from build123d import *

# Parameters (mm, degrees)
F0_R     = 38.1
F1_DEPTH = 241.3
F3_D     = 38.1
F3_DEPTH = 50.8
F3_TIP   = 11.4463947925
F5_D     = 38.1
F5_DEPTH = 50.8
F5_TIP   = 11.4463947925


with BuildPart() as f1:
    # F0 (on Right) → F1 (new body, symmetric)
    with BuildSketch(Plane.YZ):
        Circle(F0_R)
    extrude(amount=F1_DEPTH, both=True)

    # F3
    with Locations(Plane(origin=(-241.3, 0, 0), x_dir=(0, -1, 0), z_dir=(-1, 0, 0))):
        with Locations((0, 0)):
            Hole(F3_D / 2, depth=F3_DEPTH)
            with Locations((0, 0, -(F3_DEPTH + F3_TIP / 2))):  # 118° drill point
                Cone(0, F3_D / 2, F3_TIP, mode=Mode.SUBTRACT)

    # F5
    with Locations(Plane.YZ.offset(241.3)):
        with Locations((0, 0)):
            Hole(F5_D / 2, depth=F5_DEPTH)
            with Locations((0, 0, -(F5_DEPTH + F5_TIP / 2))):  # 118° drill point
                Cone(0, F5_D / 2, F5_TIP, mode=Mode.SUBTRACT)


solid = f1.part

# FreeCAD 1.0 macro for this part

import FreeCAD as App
import Part
import Sketcher

V = App.Vector
Q = App.Units.Quantity

doc = App.newDocument("Part")
params = doc.addObject("Spreadsheet::Sheet", "Params")
for row, (alias, value) in enumerate([
    ("sketch1_diameter", "3 in"),
    ("pad1_length", "19 in"),
    ("sketch2_diameter", "1.5 in"),
    ("hole_diameter", "1.5 in"),
    ("hole_depth", "2 in"),
    ("sketch3_diameter", "1.5 in"),
    ("hole2_diameter", "1.5 in"),
    ("hole2_depth", "2 in"),
], start=1):
    params.set(f"A{row}", alias)
    params.set(f"B{row}", "=" + value)
    params.setAlias(f"B{row}", alias)

body = doc.addObject("PartDesign::Body", "Body")

# Sketch on YZ plane
sketch1 = doc.addObject("Sketcher::SketchObject", "Sketch")
body.addObject(sketch1)
sketch1.AttachmentSupport = (doc.YZ_Plane, [""])
sketch1.MapMode = "FlatFace"
sketch1.addGeometry(Part.Circle(V(0, 0, 0), V(0, 0, 1), 38.1), False)
sketch1.addConstraint([
    Sketcher.Constraint("Coincident", 0, 3, -1, 1),
    Sketcher.Constraint("Diameter", 0, Q("3 in")),
])
sketch1.setExpression("Constraints[1]", "Params.sketch1_diameter")
pad1 = doc.addObject("PartDesign::Pad", "Pad")
body.addObject(pad1)
pad1.Profile = sketch1
pad1.setExpression("Length", "Params.pad1_length")
pad1.Midplane = True

# Sketch on YZ plane
sketch2 = doc.addObject("Sketcher::SketchObject", "Sketch001")
body.addObject(sketch2)
sketch2.AttachmentSupport = (doc.YZ_Plane, [""])
sketch2.MapMode = "FlatFace"
sketch2.AttachmentOffset = App.Placement(V(0, 0, -9.5 * 25.4), App.Rotation())
sketch2.addGeometry(Part.Circle(V(0, 0, 0), V(0, 0, 1), 19.05), False)
sketch2.addConstraint([
    Sketcher.Constraint("Coincident", 0, 3, -1, 1),
    Sketcher.Constraint("Diameter", 0, Q("1.5 in")),
])
sketch2.setExpression("Constraints[1]", "Params.sketch2_diameter")
doc.recompute()
hole = doc.addObject("PartDesign::Hole", "Hole")
body.addObject(hole)
hole.Profile = sketch2
hole.ThreadType = "None"
hole.setExpression("Diameter", "Params.hole_diameter")
hole.DepthType = "Dimension"
hole.setExpression("Depth", "Params.hole_depth")
hole.DrillPoint = "Angled"
hole.DrillPointAngle = 118
hole.Reversed = True

# Sketch on YZ plane
sketch3 = doc.addObject("Sketcher::SketchObject", "Sketch002")
body.addObject(sketch3)
sketch3.AttachmentSupport = (doc.YZ_Plane, [""])
sketch3.MapMode = "FlatFace"
sketch3.AttachmentOffset = App.Placement(V(0, 0, 9.5 * 25.4), App.Rotation())
sketch3.addGeometry(Part.Circle(V(0, 0, 0), V(0, 0, 1), 19.05), False)
sketch3.addConstraint([
    Sketcher.Constraint("Coincident", 0, 3, -1, 1),
    Sketcher.Constraint("Diameter", 0, Q("1.5 in")),
])
sketch3.setExpression("Constraints[1]", "Params.sketch3_diameter")
doc.recompute()
hole2 = doc.addObject("PartDesign::Hole", "Hole001")
body.addObject(hole2)
hole2.Profile = sketch3
hole2.ThreadType = "None"
hole2.setExpression("Diameter", "Params.hole2_diameter")
hole2.DepthType = "Dimension"
hole2.setExpression("Depth", "Params.hole2_depth")
hole2.DrillPoint = "Angled"
hole2.DrillPointAngle = 118

doc.recompute()
